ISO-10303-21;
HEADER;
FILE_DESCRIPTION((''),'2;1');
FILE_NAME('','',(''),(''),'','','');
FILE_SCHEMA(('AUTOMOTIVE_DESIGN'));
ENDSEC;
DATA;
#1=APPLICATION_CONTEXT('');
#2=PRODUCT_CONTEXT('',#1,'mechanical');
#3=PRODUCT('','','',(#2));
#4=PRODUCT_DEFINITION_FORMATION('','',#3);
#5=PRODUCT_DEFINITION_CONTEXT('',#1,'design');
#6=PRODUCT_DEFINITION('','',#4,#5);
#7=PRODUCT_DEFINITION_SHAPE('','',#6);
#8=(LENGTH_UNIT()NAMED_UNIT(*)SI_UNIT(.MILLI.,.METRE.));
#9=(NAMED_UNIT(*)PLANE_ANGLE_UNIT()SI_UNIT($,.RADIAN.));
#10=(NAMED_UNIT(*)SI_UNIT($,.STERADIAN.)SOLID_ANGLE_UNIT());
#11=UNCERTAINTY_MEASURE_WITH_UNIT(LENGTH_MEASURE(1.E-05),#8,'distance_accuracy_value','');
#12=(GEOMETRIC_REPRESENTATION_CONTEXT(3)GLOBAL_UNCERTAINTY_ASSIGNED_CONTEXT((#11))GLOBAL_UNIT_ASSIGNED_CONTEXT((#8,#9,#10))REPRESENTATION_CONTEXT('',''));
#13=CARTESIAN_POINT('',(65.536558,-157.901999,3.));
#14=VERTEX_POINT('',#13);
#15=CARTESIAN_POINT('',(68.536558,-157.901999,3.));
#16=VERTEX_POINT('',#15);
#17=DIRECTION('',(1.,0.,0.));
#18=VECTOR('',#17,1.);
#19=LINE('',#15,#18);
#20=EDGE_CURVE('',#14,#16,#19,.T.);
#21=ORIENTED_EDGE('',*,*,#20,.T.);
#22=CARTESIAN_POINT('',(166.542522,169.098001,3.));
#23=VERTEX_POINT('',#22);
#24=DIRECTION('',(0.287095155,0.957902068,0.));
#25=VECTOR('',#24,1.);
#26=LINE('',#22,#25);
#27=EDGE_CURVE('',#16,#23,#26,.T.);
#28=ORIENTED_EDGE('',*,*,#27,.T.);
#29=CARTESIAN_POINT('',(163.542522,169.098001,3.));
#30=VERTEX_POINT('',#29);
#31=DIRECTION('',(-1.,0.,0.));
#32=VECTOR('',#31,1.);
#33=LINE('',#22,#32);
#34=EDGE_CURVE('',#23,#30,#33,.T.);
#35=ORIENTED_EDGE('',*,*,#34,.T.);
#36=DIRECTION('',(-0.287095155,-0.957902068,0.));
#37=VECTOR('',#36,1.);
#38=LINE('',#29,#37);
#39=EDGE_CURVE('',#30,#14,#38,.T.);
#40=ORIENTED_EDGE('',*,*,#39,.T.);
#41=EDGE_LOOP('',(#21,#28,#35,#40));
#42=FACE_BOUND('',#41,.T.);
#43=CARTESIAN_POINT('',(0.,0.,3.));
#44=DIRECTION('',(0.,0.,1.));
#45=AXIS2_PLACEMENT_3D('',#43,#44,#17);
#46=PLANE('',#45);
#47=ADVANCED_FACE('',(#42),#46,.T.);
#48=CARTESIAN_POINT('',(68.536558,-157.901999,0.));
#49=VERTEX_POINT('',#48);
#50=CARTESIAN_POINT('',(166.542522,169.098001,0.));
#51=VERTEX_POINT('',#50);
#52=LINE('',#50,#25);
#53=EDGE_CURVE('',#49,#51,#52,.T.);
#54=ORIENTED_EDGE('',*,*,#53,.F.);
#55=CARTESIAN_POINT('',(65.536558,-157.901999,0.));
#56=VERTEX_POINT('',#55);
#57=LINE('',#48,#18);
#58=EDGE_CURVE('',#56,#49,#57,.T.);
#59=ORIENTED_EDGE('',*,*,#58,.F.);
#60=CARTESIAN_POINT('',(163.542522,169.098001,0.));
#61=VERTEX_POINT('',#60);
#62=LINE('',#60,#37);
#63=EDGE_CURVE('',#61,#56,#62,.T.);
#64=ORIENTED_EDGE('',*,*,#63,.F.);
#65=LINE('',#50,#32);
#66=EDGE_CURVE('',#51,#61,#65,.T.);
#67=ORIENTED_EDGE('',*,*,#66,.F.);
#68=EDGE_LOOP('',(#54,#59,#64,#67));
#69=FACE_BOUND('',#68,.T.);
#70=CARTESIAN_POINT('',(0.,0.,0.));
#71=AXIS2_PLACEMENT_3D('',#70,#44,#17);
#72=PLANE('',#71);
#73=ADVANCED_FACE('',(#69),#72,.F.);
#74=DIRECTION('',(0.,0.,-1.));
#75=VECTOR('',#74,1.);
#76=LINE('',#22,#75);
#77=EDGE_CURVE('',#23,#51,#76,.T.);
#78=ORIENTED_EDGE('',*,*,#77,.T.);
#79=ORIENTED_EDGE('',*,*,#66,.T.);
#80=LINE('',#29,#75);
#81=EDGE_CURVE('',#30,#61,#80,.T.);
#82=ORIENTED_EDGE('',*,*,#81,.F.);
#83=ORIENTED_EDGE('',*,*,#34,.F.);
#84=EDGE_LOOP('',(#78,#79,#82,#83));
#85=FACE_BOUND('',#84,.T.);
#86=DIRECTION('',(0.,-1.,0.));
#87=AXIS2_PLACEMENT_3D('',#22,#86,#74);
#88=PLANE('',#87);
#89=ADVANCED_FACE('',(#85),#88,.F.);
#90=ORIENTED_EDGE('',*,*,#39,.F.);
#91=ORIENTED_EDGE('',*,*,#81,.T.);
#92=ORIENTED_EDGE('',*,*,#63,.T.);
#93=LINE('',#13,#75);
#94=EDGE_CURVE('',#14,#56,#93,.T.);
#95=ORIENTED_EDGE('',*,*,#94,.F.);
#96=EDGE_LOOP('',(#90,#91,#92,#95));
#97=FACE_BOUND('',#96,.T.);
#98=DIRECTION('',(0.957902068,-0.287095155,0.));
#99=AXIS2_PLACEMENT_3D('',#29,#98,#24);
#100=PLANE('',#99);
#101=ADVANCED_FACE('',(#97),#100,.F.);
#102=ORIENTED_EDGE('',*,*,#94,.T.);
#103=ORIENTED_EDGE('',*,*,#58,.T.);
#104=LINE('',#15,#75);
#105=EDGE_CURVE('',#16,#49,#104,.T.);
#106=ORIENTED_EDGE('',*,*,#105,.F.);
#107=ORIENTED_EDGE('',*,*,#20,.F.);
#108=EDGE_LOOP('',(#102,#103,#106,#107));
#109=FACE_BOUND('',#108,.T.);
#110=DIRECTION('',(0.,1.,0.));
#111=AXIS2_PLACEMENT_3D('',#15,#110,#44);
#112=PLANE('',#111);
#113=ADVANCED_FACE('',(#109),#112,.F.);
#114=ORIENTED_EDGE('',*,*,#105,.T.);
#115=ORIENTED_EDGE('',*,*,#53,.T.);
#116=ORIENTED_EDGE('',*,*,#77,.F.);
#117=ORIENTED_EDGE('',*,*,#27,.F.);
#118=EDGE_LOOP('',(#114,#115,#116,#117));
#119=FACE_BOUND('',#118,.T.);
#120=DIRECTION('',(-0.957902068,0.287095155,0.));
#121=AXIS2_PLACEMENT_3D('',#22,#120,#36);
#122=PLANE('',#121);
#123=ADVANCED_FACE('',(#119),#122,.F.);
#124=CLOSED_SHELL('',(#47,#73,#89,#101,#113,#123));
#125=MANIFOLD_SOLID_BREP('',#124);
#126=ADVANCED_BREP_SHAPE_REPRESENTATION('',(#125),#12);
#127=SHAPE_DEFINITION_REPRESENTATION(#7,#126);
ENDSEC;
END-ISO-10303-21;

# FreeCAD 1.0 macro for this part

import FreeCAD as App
import Part
import Sketcher
Q = App.Units.Quantity


def add_polygon(sketch, points):
    """Adds a closed chain of lines whose ends are joined by coincident constraints."""
    first, n = sketch.GeometryCount, len(points)
    for a, b in zip(points, points[1:] + points[:1]):
        sketch.addGeometry(Part.LineSegment(App.Vector(*a, 0), App.Vector(*b, 0)), False)
    for i in range(n):
        sketch.addConstraint(Sketcher.Constraint("Coincident", first + i, 2, first + (i + 1) % n, 1))

doc = App.newDocument("Part")
body = doc.addObject("PartDesign::Body", "Body")

# Sketch on XY plane
sketch1 = doc.addObject("Sketcher::SketchObject", "Sketch")
body.addObject(sketch1)
sketch1.AttachmentSupport = (doc.XY_Plane, [""])
sketch1.MapMode = "FlatFace"
add_polygon(sketch1, [(68.536558, -157.901999), (166.542522, 169.098001), (163.542522, 169.098001), (65.536558, -157.901999)])  # lines 0-3
sketch1.addConstraint(Sketcher.Constraint("Horizontal", 1))
sketch1.addConstraint(Sketcher.Constraint("Horizontal", 3))
sketch1.addConstraint(Sketcher.Constraint("Parallel", 0, 2))
sketch1.addConstraint(Sketcher.Constraint("DistanceX", 1, 2, 1, 1, Q("3 mm")))
sketch1.addConstraint(Sketcher.Constraint("DistanceY", 2, 2, 1, 2, Q("327 mm")))
sketch1.addConstraint(Sketcher.Constraint("DistanceY", -1, 1, 0, 2, Q("169.098001 mm")))
sketch1.addConstraint(Sketcher.Constraint("DistanceX", -1, 1, 2, 2, Q("65.536558 mm")))
sketch1.addConstraint(Sketcher.Constraint("Distance", 0, Q("341.371014 mm")))
pad1 = doc.addObject("PartDesign::Pad", "Pad")
body.addObject(pad1)
pad1.Profile = sketch1
pad1.Length = 3

doc.recompute()
